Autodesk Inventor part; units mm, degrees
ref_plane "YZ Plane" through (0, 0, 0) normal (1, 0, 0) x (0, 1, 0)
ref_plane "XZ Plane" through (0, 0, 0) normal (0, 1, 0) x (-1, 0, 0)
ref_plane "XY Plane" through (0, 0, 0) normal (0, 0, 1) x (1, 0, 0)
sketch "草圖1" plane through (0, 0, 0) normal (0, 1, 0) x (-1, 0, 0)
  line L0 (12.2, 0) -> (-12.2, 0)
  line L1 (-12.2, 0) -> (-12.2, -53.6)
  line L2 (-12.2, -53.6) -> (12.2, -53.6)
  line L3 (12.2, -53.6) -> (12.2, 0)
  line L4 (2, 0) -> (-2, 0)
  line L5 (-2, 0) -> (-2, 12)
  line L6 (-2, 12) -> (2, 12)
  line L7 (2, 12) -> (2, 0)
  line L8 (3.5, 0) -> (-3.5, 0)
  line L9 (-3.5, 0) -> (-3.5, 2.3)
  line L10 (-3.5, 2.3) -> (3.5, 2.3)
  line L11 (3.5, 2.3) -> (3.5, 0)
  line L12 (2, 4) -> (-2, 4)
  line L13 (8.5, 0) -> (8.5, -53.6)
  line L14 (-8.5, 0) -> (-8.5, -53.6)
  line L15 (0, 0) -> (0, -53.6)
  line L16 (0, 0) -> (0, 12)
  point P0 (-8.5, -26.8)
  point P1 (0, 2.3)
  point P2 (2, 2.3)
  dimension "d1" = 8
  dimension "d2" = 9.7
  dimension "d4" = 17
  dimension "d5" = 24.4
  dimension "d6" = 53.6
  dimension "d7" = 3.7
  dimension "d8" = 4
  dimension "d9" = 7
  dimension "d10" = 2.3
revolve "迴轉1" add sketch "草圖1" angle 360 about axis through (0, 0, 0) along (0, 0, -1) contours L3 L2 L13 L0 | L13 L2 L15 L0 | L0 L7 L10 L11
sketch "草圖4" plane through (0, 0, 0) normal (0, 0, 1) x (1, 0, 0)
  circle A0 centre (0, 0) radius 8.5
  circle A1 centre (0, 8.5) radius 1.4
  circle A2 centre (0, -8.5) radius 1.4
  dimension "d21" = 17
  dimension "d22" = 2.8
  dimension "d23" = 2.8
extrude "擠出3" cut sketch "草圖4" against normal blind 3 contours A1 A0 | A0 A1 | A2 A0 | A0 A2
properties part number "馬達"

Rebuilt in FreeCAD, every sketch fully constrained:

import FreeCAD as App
import Part
import Sketcher


def add_polygon(sketch, points):
    """Adds a closed chain of lines whose ends are joined by coincident constraints."""
    first, n = sketch.GeometryCount, len(points)
    for a, b in zip(points, points[1:] + points[:1]):
        sketch.addGeometry(Part.LineSegment(App.Vector(*a, 0), App.Vector(*b, 0)), False)
    for i in range(n):
        sketch.addConstraint(Sketcher.Constraint("Coincident", first + i, 2, first + (i + 1) % n, 1))

doc = App.newDocument("Part")
body = doc.addObject("PartDesign::Body", "Body")

sketch1 = body.newObject("Sketcher::SketchObject", "Sketch")
sketch1.AttachmentSupport = (doc.getObject("XZ_Plane"), [""])
sketch1.MapMode = "FlatFace"
add_polygon(sketch1, [(-12.2, -53.6), (-12.2, 0), (-3.5, 0), (-3.5, 2.3), (-2, 2.3), (-2, 0), (0, 0), (0, -53.6)])
sketch1.addConstraint([
    Sketcher.Constraint("Vertical", 0),
    Sketcher.Constraint("Horizontal", 1),
    Sketcher.Constraint("Vertical", 2),
    Sketcher.Constraint("Horizontal", 3),
    Sketcher.Constraint("Vertical", 4),
    Sketcher.Constraint("Horizontal", 5),
    Sketcher.Constraint("Vertical", 6),
    Sketcher.Constraint("Horizontal", 7),
    Sketcher.Constraint("Coincident", 5, 2, -1, 1),
    Sketcher.Constraint("PointOnObject", 0, 2, -1),
    Sketcher.Constraint("DistanceY", 0, 1, 0, 2, 53.6),
    Sketcher.Constraint("DistanceY", 2, 1, 2, 2, 2.3),
    Sketcher.Constraint("DistanceX", 5, 1, 5, 2, 2.0),
    Sketcher.Constraint("DistanceX", 1, 1, 1, 2, 8.7),
    Sketcher.Constraint("DistanceX", 3, 1, 3, 2, 1.5),
])
revolution = body.newObject("PartDesign::Revolution", "Revolution")
revolution.Profile = sketch1
revolution.ReferenceAxis = (sketch1, ["V_Axis"])
revolution.Angle = 360

sketch2 = body.newObject("Sketcher::SketchObject", "Sketch001")
sketch2.AttachmentSupport = (doc.getObject("XY_Plane"), [""])
sketch2.MapMode = "FlatFace"
sketch2.addGeometry([
    Part.Circle(App.Vector(0, 8.5, 0), App.Vector(0, 0, 1), 1.4),
    Part.Circle(App.Vector(0, -8.5, 0), App.Vector(0, 0, 1), 1.4),
], False)
sketch2.addConstraint([
    Sketcher.Constraint("Equal", 0, 1),
    Sketcher.Constraint("Symmetric", 0, 3, 1, 3, -1, 1),
    Sketcher.Constraint("PointOnObject", 0, 3, -2),
    Sketcher.Constraint("Diameter", 0, 2.8),
    Sketcher.Constraint("DistanceY", 1, 3, 0, 3, 17.0),
])
pocket1 = body.newObject("PartDesign::Pocket", "Pocket")
pocket1.Profile = sketch2
pocket1.Length = 3

doc.recompute()
